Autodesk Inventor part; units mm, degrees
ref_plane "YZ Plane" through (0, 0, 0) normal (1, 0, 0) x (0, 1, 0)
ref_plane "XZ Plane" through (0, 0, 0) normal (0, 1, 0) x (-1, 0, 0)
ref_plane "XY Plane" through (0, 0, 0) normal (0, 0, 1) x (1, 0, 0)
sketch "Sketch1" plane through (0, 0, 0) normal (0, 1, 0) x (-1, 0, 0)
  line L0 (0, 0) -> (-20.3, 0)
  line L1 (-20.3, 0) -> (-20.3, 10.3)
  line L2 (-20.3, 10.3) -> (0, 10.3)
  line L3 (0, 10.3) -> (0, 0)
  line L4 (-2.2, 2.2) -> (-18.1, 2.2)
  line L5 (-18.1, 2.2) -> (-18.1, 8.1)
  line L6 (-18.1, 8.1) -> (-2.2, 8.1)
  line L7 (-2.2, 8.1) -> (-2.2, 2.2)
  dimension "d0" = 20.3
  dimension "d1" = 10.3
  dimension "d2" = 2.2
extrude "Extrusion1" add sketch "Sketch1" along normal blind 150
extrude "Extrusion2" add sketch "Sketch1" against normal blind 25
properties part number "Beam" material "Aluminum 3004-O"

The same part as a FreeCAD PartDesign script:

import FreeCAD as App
import Part
import Sketcher


def add_polygon(sketch, points):
    """Adds a closed chain of lines whose ends are joined by coincident constraints."""
    first, n = sketch.GeometryCount, len(points)
    for a, b in zip(points, points[1:] + points[:1]):
        sketch.addGeometry(Part.LineSegment(App.Vector(*a, 0), App.Vector(*b, 0)), False)
    for i in range(n):
        sketch.addConstraint(Sketcher.Constraint("Coincident", first + i, 2, first + (i + 1) % n, 1))

doc = App.newDocument("Part")
params = doc.addObject("Spreadsheet::Sheet", "Params")
for row, (alias, value) in enumerate([
    ("sketch1_width", "20.3 mm"),
    ("sketch1_height", "10.3 mm"),
    ("pad1_length", "150 mm"),
    ("sketch2_width", "20.3 mm"),
    ("sketch2_height", "10.3 mm"),
    ("pad2_length", "25 mm"),
], start=1):
    params.set(f"A{row}", alias)
    params.set(f"B{row}", "=" + value)
    params.setAlias(f"B{row}", alias)

body = doc.addObject("PartDesign::Body", "Body")

sketch1 = doc.addObject("Sketcher::SketchObject", "Sketch")
body.addObject(sketch1)
sketch1.AttachmentSupport = (doc.XZ_Plane, [""])
sketch1.MapMode = "FlatFace"
add_polygon(sketch1, [(20.3, 0), (0, 0), (0, 10.3), (20.3, 10.3)])
add_polygon(sketch1, [(2.2, 8.1), (2.2, 2.2), (18.1, 2.2), (18.1, 8.1)])
sketch1.addConstraint([
    Sketcher.Constraint("Horizontal", 0),
    Sketcher.Constraint("Vertical", 1),
    Sketcher.Constraint("Horizontal", 2),
    Sketcher.Constraint("Vertical", 3),
    Sketcher.Constraint("Vertical", 4),
    Sketcher.Constraint("Horizontal", 5),
    Sketcher.Constraint("Vertical", 6),
    Sketcher.Constraint("Horizontal", 7),
    Sketcher.Constraint("Coincident", 0, 2, -1, 1),
    Sketcher.Constraint("DistanceX", 0, 2, 0, 1, 20.3),
    Sketcher.Constraint("DistanceY", 1, 1, 1, 2, 10.3),
    Sketcher.Constraint("DistanceX", -1, 1, 4, 2, 2.2),
    Sketcher.Constraint("DistanceY", -1, 1, 4, 2, 2.2),
    Sketcher.Constraint("DistanceX", 5, 2, 3, 2, 2.2),
    Sketcher.Constraint("DistanceY", 6, 2, 2, 2, 2.2),
])
sketch1.setExpression("Constraints[17]", "Params.sketch1_width")
sketch1.setExpression("Constraints[18]", "Params.sketch1_height")
pad1 = doc.addObject("PartDesign::Pad", "Pad")
body.addObject(pad1)
pad1.Profile = sketch1
pad1.setExpression("Length", "Params.pad1_length")
pad1.Reversed = True

sketch2 = doc.addObject("Sketcher::SketchObject", "Sketch001")
body.addObject(sketch2)
sketch2.AttachmentSupport = (doc.XZ_Plane, [""])
sketch2.MapMode = "FlatFace"
add_polygon(sketch2, [(20.3, 0), (0, 0), (0, 10.3), (20.3, 10.3)])
add_polygon(sketch2, [(2.2, 8.1), (2.2, 2.2), (18.1, 2.2), (18.1, 8.1)])
sketch2.addConstraint([
    Sketcher.Constraint("Horizontal", 0),
    Sketcher.Constraint("Vertical", 1),
    Sketcher.Constraint("Horizontal", 2),
    Sketcher.Constraint("Vertical", 3),
    Sketcher.Constraint("Vertical", 4),
    Sketcher.Constraint("Horizontal", 5),
    Sketcher.Constraint("Vertical", 6),
    Sketcher.Constraint("Horizontal", 7),
    Sketcher.Constraint("Coincident", 0, 2, -1, 1),
    Sketcher.Constraint("DistanceX", 0, 2, 0, 1, 20.3),
    Sketcher.Constraint("DistanceY", 1, 1, 1, 2, 10.3),
    Sketcher.Constraint("DistanceX", -1, 1, 4, 2, 2.2),
    Sketcher.Constraint("DistanceY", -1, 1, 4, 2, 2.2),
    Sketcher.Constraint("DistanceX", 5, 2, 3, 2, 2.2),
    Sketcher.Constraint("DistanceY", 6, 2, 2, 2, 2.2),
])
sketch2.setExpression("Constraints[17]", "Params.sketch2_width")
sketch2.setExpression("Constraints[18]", "Params.sketch2_height")
pad2 = doc.addObject("PartDesign::Pad", "Pad001")
body.addObject(pad2)
pad2.Profile = sketch2
pad2.setExpression("Length", "Params.pad2_length")

doc.recompute()
